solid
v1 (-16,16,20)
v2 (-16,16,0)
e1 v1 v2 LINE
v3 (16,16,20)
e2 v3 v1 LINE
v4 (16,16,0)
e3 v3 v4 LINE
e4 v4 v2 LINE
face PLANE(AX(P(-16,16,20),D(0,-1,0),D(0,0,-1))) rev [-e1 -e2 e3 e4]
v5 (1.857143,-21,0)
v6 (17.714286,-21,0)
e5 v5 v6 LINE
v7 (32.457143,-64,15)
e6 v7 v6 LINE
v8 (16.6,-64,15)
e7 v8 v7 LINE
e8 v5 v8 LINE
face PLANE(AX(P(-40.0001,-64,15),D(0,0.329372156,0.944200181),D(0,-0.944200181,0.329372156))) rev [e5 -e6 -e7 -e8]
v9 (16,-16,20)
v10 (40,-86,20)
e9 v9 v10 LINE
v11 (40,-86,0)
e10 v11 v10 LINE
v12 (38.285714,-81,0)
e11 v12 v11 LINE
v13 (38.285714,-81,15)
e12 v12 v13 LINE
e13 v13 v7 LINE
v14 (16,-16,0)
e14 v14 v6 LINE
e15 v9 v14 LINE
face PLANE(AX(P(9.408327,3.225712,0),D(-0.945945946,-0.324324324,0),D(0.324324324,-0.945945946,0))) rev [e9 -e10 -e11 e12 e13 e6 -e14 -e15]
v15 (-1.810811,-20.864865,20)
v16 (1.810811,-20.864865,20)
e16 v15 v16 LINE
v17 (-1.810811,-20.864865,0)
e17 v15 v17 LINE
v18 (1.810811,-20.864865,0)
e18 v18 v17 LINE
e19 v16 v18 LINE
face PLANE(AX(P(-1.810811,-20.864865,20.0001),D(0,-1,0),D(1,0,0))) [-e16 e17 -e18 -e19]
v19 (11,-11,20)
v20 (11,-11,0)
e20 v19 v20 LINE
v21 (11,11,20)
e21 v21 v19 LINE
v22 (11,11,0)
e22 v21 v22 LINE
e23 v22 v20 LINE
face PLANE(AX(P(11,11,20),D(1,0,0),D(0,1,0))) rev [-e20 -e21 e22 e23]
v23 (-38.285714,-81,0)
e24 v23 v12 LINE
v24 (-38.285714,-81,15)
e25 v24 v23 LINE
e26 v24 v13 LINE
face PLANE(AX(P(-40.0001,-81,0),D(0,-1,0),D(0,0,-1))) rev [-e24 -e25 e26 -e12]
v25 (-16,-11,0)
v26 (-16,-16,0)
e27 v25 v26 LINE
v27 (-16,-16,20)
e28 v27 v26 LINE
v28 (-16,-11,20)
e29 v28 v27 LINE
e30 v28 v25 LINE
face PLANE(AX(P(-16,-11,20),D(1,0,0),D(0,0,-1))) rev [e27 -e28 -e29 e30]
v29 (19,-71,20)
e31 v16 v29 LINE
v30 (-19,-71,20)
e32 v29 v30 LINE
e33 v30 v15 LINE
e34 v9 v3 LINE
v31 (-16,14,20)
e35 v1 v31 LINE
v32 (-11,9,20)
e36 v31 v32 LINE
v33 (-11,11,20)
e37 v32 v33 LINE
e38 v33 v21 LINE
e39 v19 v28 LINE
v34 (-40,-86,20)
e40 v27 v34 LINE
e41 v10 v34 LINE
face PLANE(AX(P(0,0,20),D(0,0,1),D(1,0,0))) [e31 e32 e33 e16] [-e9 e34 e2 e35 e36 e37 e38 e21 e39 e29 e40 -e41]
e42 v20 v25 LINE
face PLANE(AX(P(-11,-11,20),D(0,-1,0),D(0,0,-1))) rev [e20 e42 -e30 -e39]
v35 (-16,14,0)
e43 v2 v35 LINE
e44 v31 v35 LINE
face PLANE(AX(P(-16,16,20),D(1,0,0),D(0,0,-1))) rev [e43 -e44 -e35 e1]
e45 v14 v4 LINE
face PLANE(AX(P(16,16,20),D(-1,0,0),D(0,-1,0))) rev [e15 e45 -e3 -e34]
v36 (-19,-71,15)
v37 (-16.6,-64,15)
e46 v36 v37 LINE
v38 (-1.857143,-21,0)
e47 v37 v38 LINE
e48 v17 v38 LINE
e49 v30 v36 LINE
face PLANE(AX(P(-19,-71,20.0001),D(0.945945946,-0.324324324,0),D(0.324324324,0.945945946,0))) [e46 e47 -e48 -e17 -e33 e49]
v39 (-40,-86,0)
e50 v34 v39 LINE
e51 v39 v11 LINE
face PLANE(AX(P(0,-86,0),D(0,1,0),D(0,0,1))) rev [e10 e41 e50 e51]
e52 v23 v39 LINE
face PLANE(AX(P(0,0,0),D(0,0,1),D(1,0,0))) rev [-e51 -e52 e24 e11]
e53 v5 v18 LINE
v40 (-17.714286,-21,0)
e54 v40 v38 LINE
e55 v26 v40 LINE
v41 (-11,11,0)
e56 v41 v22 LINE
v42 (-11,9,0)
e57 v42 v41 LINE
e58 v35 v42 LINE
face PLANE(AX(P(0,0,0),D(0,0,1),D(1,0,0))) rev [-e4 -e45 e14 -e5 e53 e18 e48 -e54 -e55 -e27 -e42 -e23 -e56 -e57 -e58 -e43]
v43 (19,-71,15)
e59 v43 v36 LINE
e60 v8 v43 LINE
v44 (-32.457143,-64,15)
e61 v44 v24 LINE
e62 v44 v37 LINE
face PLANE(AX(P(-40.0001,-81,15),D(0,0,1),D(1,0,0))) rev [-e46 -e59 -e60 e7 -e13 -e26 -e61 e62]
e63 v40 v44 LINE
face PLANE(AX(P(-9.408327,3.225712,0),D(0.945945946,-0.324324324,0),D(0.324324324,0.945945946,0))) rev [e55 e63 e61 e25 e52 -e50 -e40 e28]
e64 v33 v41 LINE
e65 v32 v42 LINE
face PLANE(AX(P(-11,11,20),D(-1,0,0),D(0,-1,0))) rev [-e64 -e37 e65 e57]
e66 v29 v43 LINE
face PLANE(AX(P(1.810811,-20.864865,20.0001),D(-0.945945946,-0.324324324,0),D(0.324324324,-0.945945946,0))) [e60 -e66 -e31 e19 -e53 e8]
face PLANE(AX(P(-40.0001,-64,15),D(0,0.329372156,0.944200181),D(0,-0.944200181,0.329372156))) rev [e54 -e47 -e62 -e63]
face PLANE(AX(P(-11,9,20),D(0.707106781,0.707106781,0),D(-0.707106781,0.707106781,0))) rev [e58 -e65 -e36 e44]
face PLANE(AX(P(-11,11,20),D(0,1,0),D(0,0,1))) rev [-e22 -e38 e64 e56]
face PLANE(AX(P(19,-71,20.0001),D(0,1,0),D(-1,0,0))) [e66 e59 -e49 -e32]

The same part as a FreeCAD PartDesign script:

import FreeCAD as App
import Part
import Sketcher
from FreeCAD import Vector
Q = App.Units.Quantity

doc = App.newDocument("Part")
body = doc.addObject("PartDesign::Body", "Body")

sketch1 = body.newObject("Sketcher::SketchObject", "Sketch")
sketch1.AttachmentSupport = (doc.getObject("XY_Plane"), [""])
sketch1.MapMode = "FlatFace"
sketch1.addGeometry(Part.LineSegment(Vector(16, -16, 0), Vector(16, 16, 0)), False)
sketch1.addGeometry(Part.LineSegment(Vector(16, 16, 0), Vector(-16, 16, 0)), False)
sketch1.addGeometry(Part.LineSegment(Vector(-16, 16, 0), Vector(-16, 14, 0)), False)
sketch1.addGeometry(Part.LineSegment(Vector(-16, 14, 0), Vector(-11, 9, 0)), False)
sketch1.addGeometry(Part.LineSegment(Vector(-11, 9, 0), Vector(-11, 11, 0)), False)
sketch1.addGeometry(Part.LineSegment(Vector(-11, 11, 0), Vector(11, 11, 0)), False)
sketch1.addGeometry(Part.LineSegment(Vector(11, 11, 0), Vector(11, -11, 0)), False)
sketch1.addGeometry(Part.LineSegment(Vector(11, -11, 0), Vector(-16, -11, 0)), False)
sketch1.addGeometry(Part.LineSegment(Vector(-16, -11, 0), Vector(-16, -16, 0)), False)
sketch1.addGeometry(Part.LineSegment(Vector(-16, -16, 0), Vector(16, -16, 0)), False)
sketch1.addConstraint(Sketcher.Constraint("Coincident", 0, 2, 1, 1))
sketch1.addConstraint(Sketcher.Constraint("Coincident", 1, 2, 2, 1))
sketch1.addConstraint(Sketcher.Constraint("Coincident", 2, 2, 3, 1))
sketch1.addConstraint(Sketcher.Constraint("Coincident", 3, 2, 4, 1))
sketch1.addConstraint(Sketcher.Constraint("Coincident", 4, 2, 5, 1))
sketch1.addConstraint(Sketcher.Constraint("Coincident", 5, 2, 6, 1))
sketch1.addConstraint(Sketcher.Constraint("Coincident", 6, 2, 7, 1))
sketch1.addConstraint(Sketcher.Constraint("Coincident", 7, 2, 8, 1))
sketch1.addConstraint(Sketcher.Constraint("Coincident", 8, 2, 9, 1))
sketch1.addConstraint(Sketcher.Constraint("Coincident", 9, 2, 0, 1))
sketch1.addConstraint(Sketcher.Constraint("Vertical", 0))
sketch1.addConstraint(Sketcher.Constraint("Horizontal", 1))
sketch1.addConstraint(Sketcher.Constraint("Vertical", 2))
sketch1.addConstraint(Sketcher.Constraint("Vertical", 4))
sketch1.addConstraint(Sketcher.Constraint("Horizontal", 5))
sketch1.addConstraint(Sketcher.Constraint("Vertical", 6))
sketch1.addConstraint(Sketcher.Constraint("Horizontal", 7))
sketch1.addConstraint(Sketcher.Constraint("Vertical", 8))
sketch1.addConstraint(Sketcher.Constraint("Horizontal", 9))
sketch1.addConstraint(Sketcher.Constraint("Symmetric", 4, 2, 6, 2, -1, 1))
sketch1.addConstraint(Sketcher.Constraint("Symmetric", 0, 2, 8, 2, -1, 1))
sketch1.addConstraint(Sketcher.Constraint("Vertical", 2, 2, 7, 2))
sketch1.addConstraint(Sketcher.Constraint("Equal", 9, 0))
sketch1.addConstraint(Sketcher.Constraint("Equal", 2, 4))
sketch1.addConstraint(Sketcher.Constraint("Equal", 5, 6))
sketch1.addConstraint(Sketcher.Constraint("DistanceX", 1, 2, 1, 1, Q("32 mm")))
sketch1.addConstraint(Sketcher.Constraint("DistanceX", 5, 1, 5, 2, Q("22 mm")))
sketch1.addConstraint(Sketcher.Constraint("DistanceY", 2, 2, 2, 1, Q("2 mm")))
pad1 = body.newObject("PartDesign::Pad", "Pad")
pad1.Profile = sketch1
pad1.Length = 20

sketch2 = body.newObject("Sketcher::SketchObject", "Sketch001")
sketch2.AttachmentSupport = (doc.getObject("XZ_Plane"), [""])
sketch2.MapMode = "FlatFace"
sketch2.AttachmentOffset = App.Placement(Vector(0, 0, 16), App.Rotation())
sketch2.addGeometry(Part.LineSegment(Vector(-16, 0, 0), Vector(16, 0, 0)), False)
sketch2.addGeometry(Part.LineSegment(Vector(16, 0, 0), Vector(16, 20, 0)), False)
sketch2.addGeometry(Part.LineSegment(Vector(16, 20, 0), Vector(-16, 20, 0)), False)
sketch2.addGeometry(Part.LineSegment(Vector(-16, 20, 0), Vector(-16, 0, 0)), False)
sketch2.addConstraint(Sketcher.Constraint("Coincident", 0, 2, 1, 1))
sketch2.addConstraint(Sketcher.Constraint("Coincident", 1, 2, 2, 1))
sketch2.addConstraint(Sketcher.Constraint("Coincident", 2, 2, 3, 1))
sketch2.addConstraint(Sketcher.Constraint("Coincident", 3, 2, 0, 1))
sketch2.addConstraint(Sketcher.Constraint("Horizontal", 0))
sketch2.addConstraint(Sketcher.Constraint("Vertical", 1))
sketch2.addConstraint(Sketcher.Constraint("Horizontal", 2))
sketch2.addConstraint(Sketcher.Constraint("Vertical", 3))
sketch2.addConstraint(Sketcher.Constraint("Symmetric", 0, 2, 3, 2, -1, 1))
sketch2.addConstraint(Sketcher.Constraint("DistanceX", 0, 1, 0, 2, Q("32 mm")))
sketch2.addConstraint(Sketcher.Constraint("DistanceY", 1, 1, 1, 2, Q("20 mm")))

sketch3 = body.newObject("Sketcher::SketchObject", "Sketch002")
sketch3.AttachmentSupport = (doc.getObject("XZ_Plane"), [""])
sketch3.MapMode = "FlatFace"
sketch3.AttachmentOffset = App.Placement(Vector(0, 0, 86), App.Rotation())
sketch3.addGeometry(Part.LineSegment(Vector(-40, 0, 0), Vector(40, 0, 0)), False)
sketch3.addGeometry(Part.LineSegment(Vector(40, 0, 0), Vector(40, 20, 0)), False)
sketch3.addGeometry(Part.LineSegment(Vector(40, 20, 0), Vector(-40, 20, 0)), False)
sketch3.addGeometry(Part.LineSegment(Vector(-40, 20, 0), Vector(-40, 0, 0)), False)
sketch3.addConstraint(Sketcher.Constraint("Coincident", 0, 2, 1, 1))
sketch3.addConstraint(Sketcher.Constraint("Coincident", 1, 2, 2, 1))
sketch3.addConstraint(Sketcher.Constraint("Coincident", 2, 2, 3, 1))
sketch3.addConstraint(Sketcher.Constraint("Coincident", 3, 2, 0, 1))
sketch3.addConstraint(Sketcher.Constraint("Horizontal", 0))
sketch3.addConstraint(Sketcher.Constraint("Vertical", 1))
sketch3.addConstraint(Sketcher.Constraint("Horizontal", 2))
sketch3.addConstraint(Sketcher.Constraint("Vertical", 3))
sketch3.addConstraint(Sketcher.Constraint("Symmetric", 0, 2, 3, 2, -1, 1))
sketch3.addConstraint(Sketcher.Constraint("DistanceX", 0, 1, 0, 2, Q("80 mm")))
sketch3.addConstraint(Sketcher.Constraint("DistanceY", 1, 1, 1, 2, Q("20 mm")))

additiveloft = body.newObject("PartDesign::AdditiveLoft", "AdditiveLoft")
additiveloft.Profile = sketch2
additiveloft.Sections = [sketch3]

sketch4 = body.newObject("Sketcher::SketchObject", "Sketch003")
sketch4.AttachmentSupport = (doc.getObject("YZ_Plane"), [""])
sketch4.MapMode = "FlatFace"
sketch4.addGeometry(Part.LineSegment(Vector(-81, 15, 0), Vector(-81, 0, 0)), False)
sketch4.addGeometry(Part.LineSegment(Vector(-81, 0, 0), Vector(-21, 0, 0)), False)
sketch4.addGeometry(Part.LineSegment(Vector(-21, 0, 0), Vector(-64, 15, 0)), False)
sketch4.addGeometry(Part.LineSegment(Vector(-64, 15, 0), Vector(-81, 15, 0)), False)
sketch4.addConstraint(Sketcher.Constraint("Coincident", 0, 2, 1, 1))
sketch4.addConstraint(Sketcher.Constraint("Coincident", 1, 2, 2, 1))
sketch4.addConstraint(Sketcher.Constraint("Coincident", 2, 2, 3, 1))
sketch4.addConstraint(Sketcher.Constraint("Coincident", 3, 2, 0, 1))
sketch4.addConstraint(Sketcher.Constraint("Vertical", 0))
sketch4.addConstraint(Sketcher.Constraint("Horizontal", 1))
sketch4.addConstraint(Sketcher.Constraint("Horizontal", 3))
sketch4.addConstraint(Sketcher.Constraint("PointOnObject", 0, 2, -1))
sketch4.addConstraint(Sketcher.Constraint("DistanceX", 1, 1, 1, 2, Q("60 mm")))
sketch4.addConstraint(Sketcher.Constraint("DistanceX", 3, 2, 3, 1, Q("17 mm")))
sketch4.addConstraint(Sketcher.Constraint("DistanceY", 0, 2, 0, 1, Q("15 mm")))
sketch4.addConstraint(Sketcher.Constraint("DistanceX", 0, 2, -1, 1, Q("81 mm")))
pocket1 = body.newObject("PartDesign::Pocket", "Pocket")
pocket1.Profile = sketch4
pocket1.Type = "ThroughAll"
pocket1.Midplane = True

sketch5 = body.newObject("Sketcher::SketchObject", "Sketch004")
sketch5.AttachmentSupport = (doc.getObject("XY_Plane"), [""])
sketch5.MapMode = "FlatFace"
sketch5.addGeometry(Part.LineSegment(Vector(1.8, -20.9, 0), Vector(-1.8, -20.9, 0)), False)
sketch5.addGeometry(Part.LineSegment(Vector(-1.8, -20.9, 0), Vector(-19, -71, 0)), False)
sketch5.addGeometry(Part.LineSegment(Vector(-19, -71, 0), Vector(19, -71, 0)), False)
sketch5.addGeometry(Part.LineSegment(Vector(19, -71, 0), Vector(1.8, -20.9, 0)), False)
sketch5.addConstraint(Sketcher.Constraint("Coincident", 0, 2, 1, 1))
sketch5.addConstraint(Sketcher.Constraint("Coincident", 1, 2, 2, 1))
sketch5.addConstraint(Sketcher.Constraint("Coincident", 2, 2, 3, 1))
sketch5.addConstraint(Sketcher.Constraint("Coincident", 3, 2, 0, 1))
sketch5.addConstraint(Sketcher.Constraint("Horizontal", 0))
sketch5.addConstraint(Sketcher.Constraint("Horizontal", 2))
sketch5.addConstraint(Sketcher.Constraint("Equal", 1, 3))
sketch5.addConstraint(Sketcher.Constraint("DistanceX", 2, 1, 2, 2, Q("38 mm")))
sketch5.addConstraint(Sketcher.Constraint("Distance", 1, Q("53 mm")))
sketch5.addConstraint(Sketcher.Constraint("DistanceX", 1, 2, -1, 1, Q("19 mm")))
sketch5.addConstraint(Sketcher.Constraint("DistanceY", 1, 2, -1, 1, Q("71 mm")))
sketch5.addConstraint(Sketcher.Constraint("DistanceX", 0, 2, 0, 1, Q("3.621622 mm")))
pocket2 = body.newObject("PartDesign::Pocket", "Pocket001")
pocket2.Profile = sketch5
pocket2.Type = "ThroughAll"
pocket2.Reversed = True

doc.recompute()
